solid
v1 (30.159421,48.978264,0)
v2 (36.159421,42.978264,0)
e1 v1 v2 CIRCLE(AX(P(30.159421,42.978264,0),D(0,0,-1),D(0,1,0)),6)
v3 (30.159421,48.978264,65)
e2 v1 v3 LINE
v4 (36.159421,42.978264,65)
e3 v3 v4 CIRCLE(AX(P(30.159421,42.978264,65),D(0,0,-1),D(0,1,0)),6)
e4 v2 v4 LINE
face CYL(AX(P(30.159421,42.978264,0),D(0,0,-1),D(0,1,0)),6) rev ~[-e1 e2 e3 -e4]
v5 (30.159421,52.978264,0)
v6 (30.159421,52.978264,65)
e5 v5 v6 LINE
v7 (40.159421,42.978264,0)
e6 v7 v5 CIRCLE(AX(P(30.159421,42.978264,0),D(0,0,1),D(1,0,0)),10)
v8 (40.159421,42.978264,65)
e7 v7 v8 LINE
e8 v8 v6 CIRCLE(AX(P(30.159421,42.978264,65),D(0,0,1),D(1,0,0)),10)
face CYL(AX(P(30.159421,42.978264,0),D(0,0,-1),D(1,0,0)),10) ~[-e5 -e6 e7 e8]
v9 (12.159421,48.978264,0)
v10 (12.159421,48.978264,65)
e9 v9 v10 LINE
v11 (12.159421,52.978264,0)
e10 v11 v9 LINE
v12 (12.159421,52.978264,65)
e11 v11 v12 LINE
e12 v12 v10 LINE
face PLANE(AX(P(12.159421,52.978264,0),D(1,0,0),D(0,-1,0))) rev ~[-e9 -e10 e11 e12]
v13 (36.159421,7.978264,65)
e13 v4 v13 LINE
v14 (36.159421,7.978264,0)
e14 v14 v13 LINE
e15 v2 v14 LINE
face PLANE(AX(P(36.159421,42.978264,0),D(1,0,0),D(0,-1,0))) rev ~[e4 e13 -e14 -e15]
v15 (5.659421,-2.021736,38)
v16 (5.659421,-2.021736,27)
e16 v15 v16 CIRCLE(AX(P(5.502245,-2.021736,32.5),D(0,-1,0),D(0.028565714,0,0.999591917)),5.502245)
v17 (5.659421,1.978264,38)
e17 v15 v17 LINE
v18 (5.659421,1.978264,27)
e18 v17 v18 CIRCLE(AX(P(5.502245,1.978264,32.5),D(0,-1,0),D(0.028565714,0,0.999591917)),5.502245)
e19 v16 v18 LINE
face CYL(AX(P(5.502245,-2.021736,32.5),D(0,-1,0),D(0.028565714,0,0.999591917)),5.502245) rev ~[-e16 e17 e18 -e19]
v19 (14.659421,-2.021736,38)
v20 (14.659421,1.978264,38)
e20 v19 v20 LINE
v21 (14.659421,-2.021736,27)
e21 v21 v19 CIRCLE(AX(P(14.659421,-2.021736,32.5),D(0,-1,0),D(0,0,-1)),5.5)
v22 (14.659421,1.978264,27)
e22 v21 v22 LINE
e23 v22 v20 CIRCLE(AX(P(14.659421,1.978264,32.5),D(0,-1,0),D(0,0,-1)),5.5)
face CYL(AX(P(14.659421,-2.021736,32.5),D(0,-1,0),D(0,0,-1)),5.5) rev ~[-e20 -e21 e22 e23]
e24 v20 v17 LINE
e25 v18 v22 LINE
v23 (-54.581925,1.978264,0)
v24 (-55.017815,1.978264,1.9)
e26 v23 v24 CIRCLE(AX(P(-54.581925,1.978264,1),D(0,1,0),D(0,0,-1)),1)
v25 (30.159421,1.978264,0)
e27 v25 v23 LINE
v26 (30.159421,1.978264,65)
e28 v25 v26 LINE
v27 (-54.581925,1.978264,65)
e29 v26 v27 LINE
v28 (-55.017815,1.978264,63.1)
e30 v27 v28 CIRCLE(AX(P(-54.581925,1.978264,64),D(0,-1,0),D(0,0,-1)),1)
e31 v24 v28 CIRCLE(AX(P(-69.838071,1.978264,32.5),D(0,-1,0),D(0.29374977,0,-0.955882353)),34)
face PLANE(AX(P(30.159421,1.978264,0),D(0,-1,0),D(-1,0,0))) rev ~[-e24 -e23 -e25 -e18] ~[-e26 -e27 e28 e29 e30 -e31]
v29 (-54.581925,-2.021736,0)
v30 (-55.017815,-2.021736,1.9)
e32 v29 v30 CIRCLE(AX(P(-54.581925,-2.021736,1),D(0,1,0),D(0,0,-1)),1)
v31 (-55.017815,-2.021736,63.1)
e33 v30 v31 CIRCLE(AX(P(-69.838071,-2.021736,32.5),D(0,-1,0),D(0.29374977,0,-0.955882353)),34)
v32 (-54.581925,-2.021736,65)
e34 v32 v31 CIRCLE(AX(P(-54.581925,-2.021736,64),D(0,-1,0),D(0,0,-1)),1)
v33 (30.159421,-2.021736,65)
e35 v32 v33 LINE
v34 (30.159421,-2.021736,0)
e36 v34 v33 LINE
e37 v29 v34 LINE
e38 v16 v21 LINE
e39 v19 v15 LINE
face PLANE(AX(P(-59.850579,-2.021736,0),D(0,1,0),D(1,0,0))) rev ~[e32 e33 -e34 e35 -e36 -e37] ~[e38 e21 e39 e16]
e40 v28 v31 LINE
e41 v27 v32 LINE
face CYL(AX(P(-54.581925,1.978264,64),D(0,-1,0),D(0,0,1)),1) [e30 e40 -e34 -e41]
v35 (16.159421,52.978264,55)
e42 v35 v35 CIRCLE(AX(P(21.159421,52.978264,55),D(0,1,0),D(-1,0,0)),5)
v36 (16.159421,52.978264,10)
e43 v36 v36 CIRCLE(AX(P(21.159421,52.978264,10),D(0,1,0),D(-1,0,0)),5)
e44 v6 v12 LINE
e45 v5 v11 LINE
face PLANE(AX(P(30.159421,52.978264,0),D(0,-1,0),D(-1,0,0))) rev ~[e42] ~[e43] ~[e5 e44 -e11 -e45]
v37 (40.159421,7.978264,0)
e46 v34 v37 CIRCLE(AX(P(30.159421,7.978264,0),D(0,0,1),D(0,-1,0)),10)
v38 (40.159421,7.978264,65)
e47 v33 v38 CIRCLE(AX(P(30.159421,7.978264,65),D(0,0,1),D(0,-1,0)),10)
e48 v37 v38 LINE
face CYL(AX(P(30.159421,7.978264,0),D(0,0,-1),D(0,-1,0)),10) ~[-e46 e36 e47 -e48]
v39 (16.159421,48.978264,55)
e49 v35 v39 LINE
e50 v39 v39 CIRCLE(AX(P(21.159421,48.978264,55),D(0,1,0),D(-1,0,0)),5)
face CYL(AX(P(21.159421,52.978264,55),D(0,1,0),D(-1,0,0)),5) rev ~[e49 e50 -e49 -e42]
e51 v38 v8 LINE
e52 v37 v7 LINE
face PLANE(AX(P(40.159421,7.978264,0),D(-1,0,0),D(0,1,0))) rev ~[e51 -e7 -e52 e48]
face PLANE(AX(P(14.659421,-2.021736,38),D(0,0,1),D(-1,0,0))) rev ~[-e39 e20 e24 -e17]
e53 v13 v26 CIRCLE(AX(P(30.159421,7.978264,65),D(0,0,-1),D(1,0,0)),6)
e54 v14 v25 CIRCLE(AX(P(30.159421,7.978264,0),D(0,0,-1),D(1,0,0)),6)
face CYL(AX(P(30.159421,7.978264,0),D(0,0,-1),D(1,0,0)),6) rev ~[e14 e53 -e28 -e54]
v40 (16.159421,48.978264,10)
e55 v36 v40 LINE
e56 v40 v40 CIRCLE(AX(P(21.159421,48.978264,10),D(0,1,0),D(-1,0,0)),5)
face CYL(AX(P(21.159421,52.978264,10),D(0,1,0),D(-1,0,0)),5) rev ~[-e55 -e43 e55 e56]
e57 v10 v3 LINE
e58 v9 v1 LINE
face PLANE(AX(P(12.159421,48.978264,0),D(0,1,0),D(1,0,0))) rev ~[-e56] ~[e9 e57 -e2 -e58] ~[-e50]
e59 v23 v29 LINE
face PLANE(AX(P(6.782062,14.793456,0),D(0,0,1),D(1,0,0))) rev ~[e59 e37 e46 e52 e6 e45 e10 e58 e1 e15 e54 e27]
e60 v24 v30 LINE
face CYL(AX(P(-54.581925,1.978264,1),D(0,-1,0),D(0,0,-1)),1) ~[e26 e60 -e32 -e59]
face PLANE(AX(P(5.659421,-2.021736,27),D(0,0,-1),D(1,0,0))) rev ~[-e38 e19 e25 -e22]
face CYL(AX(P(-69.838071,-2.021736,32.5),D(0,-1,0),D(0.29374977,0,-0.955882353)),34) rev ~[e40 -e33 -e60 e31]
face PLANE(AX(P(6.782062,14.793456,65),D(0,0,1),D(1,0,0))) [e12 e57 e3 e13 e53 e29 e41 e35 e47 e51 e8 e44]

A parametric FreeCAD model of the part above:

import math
import FreeCAD as App
import Part
import Sketcher

V = App.Vector


def edges_at(feature, points):
    """Names of the edges that pass closest to the given points."""
    edges = feature.Shape.Edges
    near = lambda p: min(range(len(edges)), key=lambda i: edges[i].distToShape(Part.Vertex(*p))[0])
    return sorted({f"Edge{near(p) + 1}" for p in points})

doc = App.newDocument("Part")
body = doc.addObject("PartDesign::Body", "Body")

# Sketch on XY plane
sketch1 = doc.addObject("Sketcher::SketchObject", "Sketch")
body.addObject(sketch1)
sketch1.AttachmentSupport = (doc.XY_Plane, [""])
sketch1.MapMode = "FlatFace"
sketch1.addGeometry([
    Part.LineSegment(V(30.2, 53, 0), V(12.2, 53, 0)),  # 0
    Part.LineSegment(V(12.2, 53, 0), V(12.2, 49, 0)),  # 1
    Part.LineSegment(V(12.2, 49, 0), V(30.2, 49, 0)),  # 2
    Part.ArcOfCircle(Part.Circle(V(30.2, 43, 0), V(0, 0, 1), 6), math.radians(0), math.radians(90)),  # 3
    Part.LineSegment(V(36.2, 43, 0), V(36.2, 8, 0)),  # 4
    Part.ArcOfCircle(Part.Circle(V(30.2, 8, 0), V(0, 0, 1), 6), math.radians(-90), math.radians(0)),  # 5
    Part.LineSegment(V(30.2, 2, 0), V(-59.9, 2, 0)),  # 6
    Part.LineSegment(V(-59.9, 2, 0), V(-59.9, -2, 0)),  # 7
    Part.LineSegment(V(-59.9, -2, 0), V(30.2, -2, 0)),  # 8
    Part.ArcOfCircle(Part.Circle(V(30.2, 8, 0), V(0, 0, 1), 10), math.radians(-90), math.radians(0)),  # 9
    Part.LineSegment(V(40.2, 8, 0), V(40.2, 43, 0)),  # 10
    Part.ArcOfCircle(Part.Circle(V(30.2, 43, 0), V(0, 0, 1), 10), math.radians(0), math.radians(90)),  # 11
], False)
sketch1.addConstraint([
    Sketcher.Constraint("Coincident", 0, 2, 1, 1),
    Sketcher.Constraint("Coincident", 1, 2, 2, 1),
    Sketcher.Constraint("Tangent", 2, 2, 3, 2),
    Sketcher.Constraint("Tangent", 3, 1, 4, 1),
    Sketcher.Constraint("Tangent", 4, 2, 5, 2),
    Sketcher.Constraint("Tangent", 5, 1, 6, 1),
    Sketcher.Constraint("Coincident", 6, 2, 7, 1),
    Sketcher.Constraint("Coincident", 7, 2, 8, 1),
    Sketcher.Constraint("Tangent", 8, 2, 9, 1),
    Sketcher.Constraint("Tangent", 9, 2, 10, 1),
    Sketcher.Constraint("Tangent", 10, 2, 11, 1),
    Sketcher.Constraint("Tangent", 11, 2, 0, 1),
    Sketcher.Constraint("Horizontal", 0),
    Sketcher.Constraint("Vertical", 1),
    Sketcher.Constraint("Horizontal", 2),
    Sketcher.Constraint("Vertical", 4),
    Sketcher.Constraint("Horizontal", 6),
    Sketcher.Constraint("Vertical", 7),
    Sketcher.Constraint("Horizontal", 8),
    Sketcher.Constraint("Vertical", 10),
    Sketcher.Constraint("Coincident", 9, 3, 5, 3),
    Sketcher.Constraint("Coincident", 11, 3, 3, 3),
    Sketcher.Constraint("Equal", 3, 5),
    Sketcher.Constraint("Radius", 3, 6.0),
    Sketcher.Constraint("Radius", 9, 10.0),
    Sketcher.Constraint("DistanceX", 0, 2, 0, 1, 18.0),
    Sketcher.Constraint("DistanceY", 4, 2, 4, 1, 35.0),
    Sketcher.Constraint("DistanceX", 6, 2, 6, 1, 90.01),
    Sketcher.Constraint("DistanceX", -1, 1, 3, 3, 30.159421),
    Sketcher.Constraint("DistanceY", -1, 1, 3, 3, 42.978264),
])
pad1 = doc.addObject("PartDesign::Pad", "Pad")
body.addObject(pad1)
pad1.Profile = sketch1
pad1.Length = 65

# Sketch on XZ plane
sketch2 = doc.addObject("Sketcher::SketchObject", "Sketch001")
body.addObject(sketch2)
sketch2.AttachmentSupport = (doc.XZ_Plane, [""])
sketch2.MapMode = "FlatFace"
sketch2.AttachmentOffset = App.Placement(V(0, 0, -52.978264), App.Rotation())
sketch2.addGeometry([
    Part.Circle(V(21, 10, 0), V(0, 0, 1), 5),
    Part.Circle(V(21, 55, 0), V(0, 0, 1), 5),
], False)
sketch2.addConstraint([
    Sketcher.Constraint("Equal", 0, 1),
    Sketcher.Constraint("Vertical", 0, 3, 1, 3),
    Sketcher.Constraint("Diameter", 0, 10.0),
    Sketcher.Constraint("DistanceY", -1, 1, 0, 3, 10.0),
    Sketcher.Constraint("DistanceY", -1, 1, 1, 3, 55.0),
    Sketcher.Constraint("DistanceX", -1, 1, 0, 3, 21.159421),
])
pocket1 = doc.addObject("PartDesign::Pocket", "Pocket")
body.addObject(pocket1)
pocket1.Profile = sketch2
pocket1.Length = 25
pocket1.Reversed = True

# Sketch on XZ plane
sketch3 = doc.addObject("Sketcher::SketchObject", "Sketch002")
body.addObject(sketch3)
sketch3.AttachmentSupport = (doc.XZ_Plane, [""])
sketch3.MapMode = "FlatFace"
sketch3.AttachmentOffset = App.Placement(V(0, 0, 2.021736), App.Rotation())
sketch3.addGeometry([
    Part.LineSegment(V(-60, 65, 0), V(-60, 0, 0)),
    Part.ArcOfCircle(Part.Circle(V(-70, 32, 0), V(0, 0, 1), 34), math.radians(-73), math.radians(73)),
], False)
sketch3.addConstraint([
    Sketcher.Constraint("Coincident", 0, 1, 1, 2),
    Sketcher.Constraint("Coincident", 1, 1, 0, 2),
    Sketcher.Constraint("Vertical", 0),
    Sketcher.Constraint("PointOnObject", 1, 1, -1),
    Sketcher.Constraint("Radius", 1, 34.0),
    Sketcher.Constraint("DistanceY", 0, 2, 0, 1, 65.0),
    Sketcher.Constraint("DistanceX", 1, 3, -1, 1, 69.838071),
])
pocket2 = doc.addObject("PartDesign::Pocket", "Pocket001")
body.addObject(pocket2)
pocket2.Profile = sketch3
pocket2.Length = 25
doc.recompute()

fillet = doc.addObject("PartDesign::Fillet", "Fillet")
body.addObject(fillet)
fillet.Base = (pocket2, edges_at(pocket2, [(-59.851, -0.022, 65), (-59.851, -0.022, 0)]))
fillet.Radius = 1

# Sketch on XZ plane
sketch4 = doc.addObject("Sketcher::SketchObject", "Sketch003")
body.addObject(sketch4)
sketch4.AttachmentSupport = (doc.XZ_Plane, [""])
sketch4.MapMode = "FlatFace"
sketch4.AttachmentOffset = App.Placement(V(0, 0, 2.021736), App.Rotation())
sketch4.addGeometry([
    Part.ArcOfCircle(Part.Circle(V(15, 32, 0), V(0, 0, 1), 6), math.radians(-90), math.radians(90)),
    Part.LineSegment(V(15, 38, 0), V(6, 38, 0)),
    Part.ArcOfCircle(Part.Circle(V(6, 32, 0), V(0, 0, 1), 6), math.radians(88), math.radians(272)),
    Part.LineSegment(V(6, 27, 0), V(15, 27, 0)),
], False)
sketch4.addConstraint([
    Sketcher.Constraint("Tangent", 0, 2, 1, 1),
    Sketcher.Constraint("Coincident", 1, 2, 2, 1),
    Sketcher.Constraint("Coincident", 2, 2, 3, 1),
    Sketcher.Constraint("Tangent", 3, 2, 0, 1),
    Sketcher.Constraint("Horizontal", 1),
    Sketcher.Constraint("Horizontal", 3),
    Sketcher.Constraint("Horizontal", 0, 3, 2, 3),
    Sketcher.Constraint("Radius", 0, 5.5),
    Sketcher.Constraint("DistanceX", 1, 2, 1, 1, 9.0),
    Sketcher.Constraint("DistanceY", -1, 1, 0, 2, 38.0),
    Sketcher.Constraint("Radius", 2, 5.502245),
    Sketcher.Constraint("DistanceX", -1, 1, 0, 3, 14.659421),
])
pocket3 = doc.addObject("PartDesign::Pocket", "Pocket002")
body.addObject(pocket3)
pocket3.Profile = sketch4
pocket3.Length = 15

doc.recompute()
